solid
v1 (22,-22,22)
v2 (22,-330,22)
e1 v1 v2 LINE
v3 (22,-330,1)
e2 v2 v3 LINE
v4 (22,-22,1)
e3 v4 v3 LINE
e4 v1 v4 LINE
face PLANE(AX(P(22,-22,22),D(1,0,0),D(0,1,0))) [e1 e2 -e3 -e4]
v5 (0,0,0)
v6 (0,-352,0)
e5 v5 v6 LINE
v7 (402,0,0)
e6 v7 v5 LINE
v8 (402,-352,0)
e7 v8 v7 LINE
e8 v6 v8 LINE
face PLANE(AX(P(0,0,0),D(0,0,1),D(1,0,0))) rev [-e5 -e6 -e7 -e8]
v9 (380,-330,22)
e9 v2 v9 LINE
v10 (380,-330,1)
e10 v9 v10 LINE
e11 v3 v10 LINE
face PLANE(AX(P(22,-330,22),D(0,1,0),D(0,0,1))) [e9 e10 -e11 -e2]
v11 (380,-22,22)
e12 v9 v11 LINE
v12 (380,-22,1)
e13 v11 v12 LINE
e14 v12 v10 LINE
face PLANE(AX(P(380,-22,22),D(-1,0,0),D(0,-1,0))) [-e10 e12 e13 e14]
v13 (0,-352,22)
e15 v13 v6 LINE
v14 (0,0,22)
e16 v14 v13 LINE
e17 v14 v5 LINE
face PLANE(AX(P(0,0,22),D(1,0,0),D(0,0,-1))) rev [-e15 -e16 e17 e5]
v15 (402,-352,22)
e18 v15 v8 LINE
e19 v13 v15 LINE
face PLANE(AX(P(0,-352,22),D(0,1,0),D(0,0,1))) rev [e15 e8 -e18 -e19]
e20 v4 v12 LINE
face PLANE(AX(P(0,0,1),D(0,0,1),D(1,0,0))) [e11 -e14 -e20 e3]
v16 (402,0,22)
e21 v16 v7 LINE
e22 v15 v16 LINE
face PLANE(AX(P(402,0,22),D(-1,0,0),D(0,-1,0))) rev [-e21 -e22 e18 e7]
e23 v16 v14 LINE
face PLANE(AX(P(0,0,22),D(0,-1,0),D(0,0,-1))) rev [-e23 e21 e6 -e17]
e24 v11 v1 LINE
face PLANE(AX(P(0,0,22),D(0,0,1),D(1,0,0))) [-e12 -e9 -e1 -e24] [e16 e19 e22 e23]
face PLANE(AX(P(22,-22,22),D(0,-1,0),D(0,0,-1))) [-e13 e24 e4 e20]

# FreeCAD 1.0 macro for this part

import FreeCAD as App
import Part
import Sketcher
from FreeCAD import Vector


def add_polygon(sketch, points):
    """Adds a closed chain of lines whose ends are joined by coincident constraints."""
    first, n = sketch.GeometryCount, len(points)
    for a, b in zip(points, points[1:] + points[:1]):
        sketch.addGeometry(Part.LineSegment(App.Vector(*a, 0), App.Vector(*b, 0)), False)
    for i in range(n):
        sketch.addConstraint(Sketcher.Constraint("Coincident", first + i, 2, first + (i + 1) % n, 1))

doc = App.newDocument("Part")
body = doc.addObject("PartDesign::Body", "Body")

sketch1 = body.newObject("Sketcher::SketchObject", "Sketch")
sketch1.AttachmentSupport = (doc.getObject("XY_Plane"), [""])
sketch1.MapMode = "FlatFace"
add_polygon(sketch1, [(22, -22), (22, -330), (380, -330), (380, -22)])
sketch1.addConstraint([
    Sketcher.Constraint("Vertical", 0),
    Sketcher.Constraint("Horizontal", 1),
    Sketcher.Constraint("Vertical", 2),
    Sketcher.Constraint("Horizontal", 3),
    Sketcher.Constraint("DistanceX", 1, 1, 1, 2, 358.0),
    Sketcher.Constraint("DistanceY", 0, 2, 0, 1, 308.0),
    Sketcher.Constraint("DistanceX", -1, 1, 0, 2, 22.0),
    Sketcher.Constraint("DistanceY", 0, 2, -1, 1, 330.0),
])
pad1 = body.newObject("PartDesign::Pad", "Pad")
pad1.Profile = sketch1
pad1.Length = 1

sketch2 = body.newObject("Sketcher::SketchObject", "Sketch001")
sketch2.AttachmentSupport = (doc.getObject("XY_Plane"), [""])
sketch2.MapMode = "FlatFace"
add_polygon(sketch2, [(0, 0), (0, -352), (402, -352), (402, 0)])
add_polygon(sketch2, [(380, -330), (22, -330), (22, -22), (380, -22)])
sketch2.addConstraint([
    Sketcher.Constraint("Vertical", 0),
    Sketcher.Constraint("Horizontal", 1),
    Sketcher.Constraint("Vertical", 2),
    Sketcher.Constraint("Horizontal", 3),
    Sketcher.Constraint("Horizontal", 4),
    Sketcher.Constraint("Vertical", 5),
    Sketcher.Constraint("Horizontal", 6),
    Sketcher.Constraint("Vertical", 7),
    Sketcher.Constraint("Coincident", 3, 2, -1, 1),
    Sketcher.Constraint("DistanceX", 1, 1, 1, 2, 402.0),
    Sketcher.Constraint("DistanceX", 4, 2, 4, 1, 358.0),
    Sketcher.Constraint("DistanceY", 0, 2, 0, 1, 352.0),
    Sketcher.Constraint("DistanceY", 5, 1, 5, 2, 308.0),
    Sketcher.Constraint("DistanceX", -1, 1, 4, 2, 22.0),
    Sketcher.Constraint("DistanceY", 4, 2, -1, 1, 330.0),
])
pad2 = body.newObject("PartDesign::Pad", "Pad001")
pad2.Profile = sketch2
pad2.Length = 22

doc.recompute()
